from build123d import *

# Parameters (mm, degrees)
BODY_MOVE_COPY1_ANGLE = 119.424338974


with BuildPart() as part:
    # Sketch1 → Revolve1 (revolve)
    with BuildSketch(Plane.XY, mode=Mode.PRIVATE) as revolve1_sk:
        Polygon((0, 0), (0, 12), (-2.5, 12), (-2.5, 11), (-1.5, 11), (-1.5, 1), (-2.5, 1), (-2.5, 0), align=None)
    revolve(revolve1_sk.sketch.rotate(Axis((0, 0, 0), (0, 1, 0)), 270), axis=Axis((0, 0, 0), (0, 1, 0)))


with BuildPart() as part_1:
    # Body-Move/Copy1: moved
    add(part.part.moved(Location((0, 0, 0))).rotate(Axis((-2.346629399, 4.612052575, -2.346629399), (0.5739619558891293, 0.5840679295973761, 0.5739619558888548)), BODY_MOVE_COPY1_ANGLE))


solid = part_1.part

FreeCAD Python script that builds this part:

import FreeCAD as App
import Part
import Sketcher

V = App.Vector

doc = App.newDocument("Part")
body = doc.addObject("PartDesign::Body", "Body")

sketch1 = body.newObject("Sketcher::SketchObject", "Sketch")
sketch1.AttachmentSupport = (doc.getObject("XY_Plane"), [""])
sketch1.MapMode = "FlatFace"
sketch1.addGeometry([
    Part.LineSegment(V(0, 0, 0), V(0, 12, 0)),
    Part.LineSegment(V(0, 12, 0), V(-2.5, 12, 0)),
    Part.LineSegment(V(-2.5, 12, 0), V(-2.5, 11, 0)),
    Part.LineSegment(V(-2.5, 11, 0), V(-1.5, 11, 0)),
    Part.LineSegment(V(-1.5, 11, 0), V(-1.5, 1, 0)),
    Part.LineSegment(V(-1.5, 1, 0), V(-2.5, 1, 0)),
    Part.LineSegment(V(-2.5, 1, 0), V(-2.5, 0, 0)),
    Part.LineSegment(V(-2.5, 0, 0), V(0, 0, 0)),
], False)
sketch1.addConstraint([
    Sketcher.Constraint("Coincident", 0, 2, 1, 1),
    Sketcher.Constraint("Coincident", 1, 2, 2, 1),
    Sketcher.Constraint("Coincident", 2, 2, 3, 1),
    Sketcher.Constraint("Coincident", 3, 2, 4, 1),
    Sketcher.Constraint("Coincident", 4, 2, 5, 1),
    Sketcher.Constraint("Coincident", 5, 2, 6, 1),
    Sketcher.Constraint("Coincident", 6, 2, 7, 1),
    Sketcher.Constraint("Coincident", 7, 2, 0, 1),
    Sketcher.Constraint("Vertical", 0),
    Sketcher.Constraint("Horizontal", 1),
    Sketcher.Constraint("Vertical", 2),
    Sketcher.Constraint("Horizontal", 3),
    Sketcher.Constraint("Vertical", 4),
    Sketcher.Constraint("Horizontal", 5),
    Sketcher.Constraint("Vertical", 6),
    Sketcher.Constraint("Horizontal", 7),
    Sketcher.Constraint("Coincident", 7, 2, -1, 1),
    Sketcher.Constraint("Vertical", 2, 2, 5, 2),
    Sketcher.Constraint("Equal", 5, 2),
    Sketcher.Constraint("Equal", 2, 6),
    Sketcher.Constraint("DistanceX", 3, 1, 3, 2, 1.0),
    Sketcher.Constraint("DistanceY", 0, 1, 0, 2, 12.0),
    Sketcher.Constraint("DistanceX", 1, 2, 1, 1, 2.5),
])
revolution = body.newObject("PartDesign::Revolution", "Revolution")
revolution.Profile = sketch1
revolution.ReferenceAxis = (sketch1, ["V_Axis"])
revolution.Angle = 360
body2 = doc.addObject("PartDesign::Body", "Body001")
doc.recompute()

body.Placement = App.Placement(V(0, 6.877833, -6.998934), App.Rotation(V(0.573961956, 0.58406793, 0.573961956), 119.424339))
boolean = body2.newObject("PartDesign::Boolean", "Boolean")
boolean.Type = "Fuse"
boolean.addObjects([body])

doc.recompute()
